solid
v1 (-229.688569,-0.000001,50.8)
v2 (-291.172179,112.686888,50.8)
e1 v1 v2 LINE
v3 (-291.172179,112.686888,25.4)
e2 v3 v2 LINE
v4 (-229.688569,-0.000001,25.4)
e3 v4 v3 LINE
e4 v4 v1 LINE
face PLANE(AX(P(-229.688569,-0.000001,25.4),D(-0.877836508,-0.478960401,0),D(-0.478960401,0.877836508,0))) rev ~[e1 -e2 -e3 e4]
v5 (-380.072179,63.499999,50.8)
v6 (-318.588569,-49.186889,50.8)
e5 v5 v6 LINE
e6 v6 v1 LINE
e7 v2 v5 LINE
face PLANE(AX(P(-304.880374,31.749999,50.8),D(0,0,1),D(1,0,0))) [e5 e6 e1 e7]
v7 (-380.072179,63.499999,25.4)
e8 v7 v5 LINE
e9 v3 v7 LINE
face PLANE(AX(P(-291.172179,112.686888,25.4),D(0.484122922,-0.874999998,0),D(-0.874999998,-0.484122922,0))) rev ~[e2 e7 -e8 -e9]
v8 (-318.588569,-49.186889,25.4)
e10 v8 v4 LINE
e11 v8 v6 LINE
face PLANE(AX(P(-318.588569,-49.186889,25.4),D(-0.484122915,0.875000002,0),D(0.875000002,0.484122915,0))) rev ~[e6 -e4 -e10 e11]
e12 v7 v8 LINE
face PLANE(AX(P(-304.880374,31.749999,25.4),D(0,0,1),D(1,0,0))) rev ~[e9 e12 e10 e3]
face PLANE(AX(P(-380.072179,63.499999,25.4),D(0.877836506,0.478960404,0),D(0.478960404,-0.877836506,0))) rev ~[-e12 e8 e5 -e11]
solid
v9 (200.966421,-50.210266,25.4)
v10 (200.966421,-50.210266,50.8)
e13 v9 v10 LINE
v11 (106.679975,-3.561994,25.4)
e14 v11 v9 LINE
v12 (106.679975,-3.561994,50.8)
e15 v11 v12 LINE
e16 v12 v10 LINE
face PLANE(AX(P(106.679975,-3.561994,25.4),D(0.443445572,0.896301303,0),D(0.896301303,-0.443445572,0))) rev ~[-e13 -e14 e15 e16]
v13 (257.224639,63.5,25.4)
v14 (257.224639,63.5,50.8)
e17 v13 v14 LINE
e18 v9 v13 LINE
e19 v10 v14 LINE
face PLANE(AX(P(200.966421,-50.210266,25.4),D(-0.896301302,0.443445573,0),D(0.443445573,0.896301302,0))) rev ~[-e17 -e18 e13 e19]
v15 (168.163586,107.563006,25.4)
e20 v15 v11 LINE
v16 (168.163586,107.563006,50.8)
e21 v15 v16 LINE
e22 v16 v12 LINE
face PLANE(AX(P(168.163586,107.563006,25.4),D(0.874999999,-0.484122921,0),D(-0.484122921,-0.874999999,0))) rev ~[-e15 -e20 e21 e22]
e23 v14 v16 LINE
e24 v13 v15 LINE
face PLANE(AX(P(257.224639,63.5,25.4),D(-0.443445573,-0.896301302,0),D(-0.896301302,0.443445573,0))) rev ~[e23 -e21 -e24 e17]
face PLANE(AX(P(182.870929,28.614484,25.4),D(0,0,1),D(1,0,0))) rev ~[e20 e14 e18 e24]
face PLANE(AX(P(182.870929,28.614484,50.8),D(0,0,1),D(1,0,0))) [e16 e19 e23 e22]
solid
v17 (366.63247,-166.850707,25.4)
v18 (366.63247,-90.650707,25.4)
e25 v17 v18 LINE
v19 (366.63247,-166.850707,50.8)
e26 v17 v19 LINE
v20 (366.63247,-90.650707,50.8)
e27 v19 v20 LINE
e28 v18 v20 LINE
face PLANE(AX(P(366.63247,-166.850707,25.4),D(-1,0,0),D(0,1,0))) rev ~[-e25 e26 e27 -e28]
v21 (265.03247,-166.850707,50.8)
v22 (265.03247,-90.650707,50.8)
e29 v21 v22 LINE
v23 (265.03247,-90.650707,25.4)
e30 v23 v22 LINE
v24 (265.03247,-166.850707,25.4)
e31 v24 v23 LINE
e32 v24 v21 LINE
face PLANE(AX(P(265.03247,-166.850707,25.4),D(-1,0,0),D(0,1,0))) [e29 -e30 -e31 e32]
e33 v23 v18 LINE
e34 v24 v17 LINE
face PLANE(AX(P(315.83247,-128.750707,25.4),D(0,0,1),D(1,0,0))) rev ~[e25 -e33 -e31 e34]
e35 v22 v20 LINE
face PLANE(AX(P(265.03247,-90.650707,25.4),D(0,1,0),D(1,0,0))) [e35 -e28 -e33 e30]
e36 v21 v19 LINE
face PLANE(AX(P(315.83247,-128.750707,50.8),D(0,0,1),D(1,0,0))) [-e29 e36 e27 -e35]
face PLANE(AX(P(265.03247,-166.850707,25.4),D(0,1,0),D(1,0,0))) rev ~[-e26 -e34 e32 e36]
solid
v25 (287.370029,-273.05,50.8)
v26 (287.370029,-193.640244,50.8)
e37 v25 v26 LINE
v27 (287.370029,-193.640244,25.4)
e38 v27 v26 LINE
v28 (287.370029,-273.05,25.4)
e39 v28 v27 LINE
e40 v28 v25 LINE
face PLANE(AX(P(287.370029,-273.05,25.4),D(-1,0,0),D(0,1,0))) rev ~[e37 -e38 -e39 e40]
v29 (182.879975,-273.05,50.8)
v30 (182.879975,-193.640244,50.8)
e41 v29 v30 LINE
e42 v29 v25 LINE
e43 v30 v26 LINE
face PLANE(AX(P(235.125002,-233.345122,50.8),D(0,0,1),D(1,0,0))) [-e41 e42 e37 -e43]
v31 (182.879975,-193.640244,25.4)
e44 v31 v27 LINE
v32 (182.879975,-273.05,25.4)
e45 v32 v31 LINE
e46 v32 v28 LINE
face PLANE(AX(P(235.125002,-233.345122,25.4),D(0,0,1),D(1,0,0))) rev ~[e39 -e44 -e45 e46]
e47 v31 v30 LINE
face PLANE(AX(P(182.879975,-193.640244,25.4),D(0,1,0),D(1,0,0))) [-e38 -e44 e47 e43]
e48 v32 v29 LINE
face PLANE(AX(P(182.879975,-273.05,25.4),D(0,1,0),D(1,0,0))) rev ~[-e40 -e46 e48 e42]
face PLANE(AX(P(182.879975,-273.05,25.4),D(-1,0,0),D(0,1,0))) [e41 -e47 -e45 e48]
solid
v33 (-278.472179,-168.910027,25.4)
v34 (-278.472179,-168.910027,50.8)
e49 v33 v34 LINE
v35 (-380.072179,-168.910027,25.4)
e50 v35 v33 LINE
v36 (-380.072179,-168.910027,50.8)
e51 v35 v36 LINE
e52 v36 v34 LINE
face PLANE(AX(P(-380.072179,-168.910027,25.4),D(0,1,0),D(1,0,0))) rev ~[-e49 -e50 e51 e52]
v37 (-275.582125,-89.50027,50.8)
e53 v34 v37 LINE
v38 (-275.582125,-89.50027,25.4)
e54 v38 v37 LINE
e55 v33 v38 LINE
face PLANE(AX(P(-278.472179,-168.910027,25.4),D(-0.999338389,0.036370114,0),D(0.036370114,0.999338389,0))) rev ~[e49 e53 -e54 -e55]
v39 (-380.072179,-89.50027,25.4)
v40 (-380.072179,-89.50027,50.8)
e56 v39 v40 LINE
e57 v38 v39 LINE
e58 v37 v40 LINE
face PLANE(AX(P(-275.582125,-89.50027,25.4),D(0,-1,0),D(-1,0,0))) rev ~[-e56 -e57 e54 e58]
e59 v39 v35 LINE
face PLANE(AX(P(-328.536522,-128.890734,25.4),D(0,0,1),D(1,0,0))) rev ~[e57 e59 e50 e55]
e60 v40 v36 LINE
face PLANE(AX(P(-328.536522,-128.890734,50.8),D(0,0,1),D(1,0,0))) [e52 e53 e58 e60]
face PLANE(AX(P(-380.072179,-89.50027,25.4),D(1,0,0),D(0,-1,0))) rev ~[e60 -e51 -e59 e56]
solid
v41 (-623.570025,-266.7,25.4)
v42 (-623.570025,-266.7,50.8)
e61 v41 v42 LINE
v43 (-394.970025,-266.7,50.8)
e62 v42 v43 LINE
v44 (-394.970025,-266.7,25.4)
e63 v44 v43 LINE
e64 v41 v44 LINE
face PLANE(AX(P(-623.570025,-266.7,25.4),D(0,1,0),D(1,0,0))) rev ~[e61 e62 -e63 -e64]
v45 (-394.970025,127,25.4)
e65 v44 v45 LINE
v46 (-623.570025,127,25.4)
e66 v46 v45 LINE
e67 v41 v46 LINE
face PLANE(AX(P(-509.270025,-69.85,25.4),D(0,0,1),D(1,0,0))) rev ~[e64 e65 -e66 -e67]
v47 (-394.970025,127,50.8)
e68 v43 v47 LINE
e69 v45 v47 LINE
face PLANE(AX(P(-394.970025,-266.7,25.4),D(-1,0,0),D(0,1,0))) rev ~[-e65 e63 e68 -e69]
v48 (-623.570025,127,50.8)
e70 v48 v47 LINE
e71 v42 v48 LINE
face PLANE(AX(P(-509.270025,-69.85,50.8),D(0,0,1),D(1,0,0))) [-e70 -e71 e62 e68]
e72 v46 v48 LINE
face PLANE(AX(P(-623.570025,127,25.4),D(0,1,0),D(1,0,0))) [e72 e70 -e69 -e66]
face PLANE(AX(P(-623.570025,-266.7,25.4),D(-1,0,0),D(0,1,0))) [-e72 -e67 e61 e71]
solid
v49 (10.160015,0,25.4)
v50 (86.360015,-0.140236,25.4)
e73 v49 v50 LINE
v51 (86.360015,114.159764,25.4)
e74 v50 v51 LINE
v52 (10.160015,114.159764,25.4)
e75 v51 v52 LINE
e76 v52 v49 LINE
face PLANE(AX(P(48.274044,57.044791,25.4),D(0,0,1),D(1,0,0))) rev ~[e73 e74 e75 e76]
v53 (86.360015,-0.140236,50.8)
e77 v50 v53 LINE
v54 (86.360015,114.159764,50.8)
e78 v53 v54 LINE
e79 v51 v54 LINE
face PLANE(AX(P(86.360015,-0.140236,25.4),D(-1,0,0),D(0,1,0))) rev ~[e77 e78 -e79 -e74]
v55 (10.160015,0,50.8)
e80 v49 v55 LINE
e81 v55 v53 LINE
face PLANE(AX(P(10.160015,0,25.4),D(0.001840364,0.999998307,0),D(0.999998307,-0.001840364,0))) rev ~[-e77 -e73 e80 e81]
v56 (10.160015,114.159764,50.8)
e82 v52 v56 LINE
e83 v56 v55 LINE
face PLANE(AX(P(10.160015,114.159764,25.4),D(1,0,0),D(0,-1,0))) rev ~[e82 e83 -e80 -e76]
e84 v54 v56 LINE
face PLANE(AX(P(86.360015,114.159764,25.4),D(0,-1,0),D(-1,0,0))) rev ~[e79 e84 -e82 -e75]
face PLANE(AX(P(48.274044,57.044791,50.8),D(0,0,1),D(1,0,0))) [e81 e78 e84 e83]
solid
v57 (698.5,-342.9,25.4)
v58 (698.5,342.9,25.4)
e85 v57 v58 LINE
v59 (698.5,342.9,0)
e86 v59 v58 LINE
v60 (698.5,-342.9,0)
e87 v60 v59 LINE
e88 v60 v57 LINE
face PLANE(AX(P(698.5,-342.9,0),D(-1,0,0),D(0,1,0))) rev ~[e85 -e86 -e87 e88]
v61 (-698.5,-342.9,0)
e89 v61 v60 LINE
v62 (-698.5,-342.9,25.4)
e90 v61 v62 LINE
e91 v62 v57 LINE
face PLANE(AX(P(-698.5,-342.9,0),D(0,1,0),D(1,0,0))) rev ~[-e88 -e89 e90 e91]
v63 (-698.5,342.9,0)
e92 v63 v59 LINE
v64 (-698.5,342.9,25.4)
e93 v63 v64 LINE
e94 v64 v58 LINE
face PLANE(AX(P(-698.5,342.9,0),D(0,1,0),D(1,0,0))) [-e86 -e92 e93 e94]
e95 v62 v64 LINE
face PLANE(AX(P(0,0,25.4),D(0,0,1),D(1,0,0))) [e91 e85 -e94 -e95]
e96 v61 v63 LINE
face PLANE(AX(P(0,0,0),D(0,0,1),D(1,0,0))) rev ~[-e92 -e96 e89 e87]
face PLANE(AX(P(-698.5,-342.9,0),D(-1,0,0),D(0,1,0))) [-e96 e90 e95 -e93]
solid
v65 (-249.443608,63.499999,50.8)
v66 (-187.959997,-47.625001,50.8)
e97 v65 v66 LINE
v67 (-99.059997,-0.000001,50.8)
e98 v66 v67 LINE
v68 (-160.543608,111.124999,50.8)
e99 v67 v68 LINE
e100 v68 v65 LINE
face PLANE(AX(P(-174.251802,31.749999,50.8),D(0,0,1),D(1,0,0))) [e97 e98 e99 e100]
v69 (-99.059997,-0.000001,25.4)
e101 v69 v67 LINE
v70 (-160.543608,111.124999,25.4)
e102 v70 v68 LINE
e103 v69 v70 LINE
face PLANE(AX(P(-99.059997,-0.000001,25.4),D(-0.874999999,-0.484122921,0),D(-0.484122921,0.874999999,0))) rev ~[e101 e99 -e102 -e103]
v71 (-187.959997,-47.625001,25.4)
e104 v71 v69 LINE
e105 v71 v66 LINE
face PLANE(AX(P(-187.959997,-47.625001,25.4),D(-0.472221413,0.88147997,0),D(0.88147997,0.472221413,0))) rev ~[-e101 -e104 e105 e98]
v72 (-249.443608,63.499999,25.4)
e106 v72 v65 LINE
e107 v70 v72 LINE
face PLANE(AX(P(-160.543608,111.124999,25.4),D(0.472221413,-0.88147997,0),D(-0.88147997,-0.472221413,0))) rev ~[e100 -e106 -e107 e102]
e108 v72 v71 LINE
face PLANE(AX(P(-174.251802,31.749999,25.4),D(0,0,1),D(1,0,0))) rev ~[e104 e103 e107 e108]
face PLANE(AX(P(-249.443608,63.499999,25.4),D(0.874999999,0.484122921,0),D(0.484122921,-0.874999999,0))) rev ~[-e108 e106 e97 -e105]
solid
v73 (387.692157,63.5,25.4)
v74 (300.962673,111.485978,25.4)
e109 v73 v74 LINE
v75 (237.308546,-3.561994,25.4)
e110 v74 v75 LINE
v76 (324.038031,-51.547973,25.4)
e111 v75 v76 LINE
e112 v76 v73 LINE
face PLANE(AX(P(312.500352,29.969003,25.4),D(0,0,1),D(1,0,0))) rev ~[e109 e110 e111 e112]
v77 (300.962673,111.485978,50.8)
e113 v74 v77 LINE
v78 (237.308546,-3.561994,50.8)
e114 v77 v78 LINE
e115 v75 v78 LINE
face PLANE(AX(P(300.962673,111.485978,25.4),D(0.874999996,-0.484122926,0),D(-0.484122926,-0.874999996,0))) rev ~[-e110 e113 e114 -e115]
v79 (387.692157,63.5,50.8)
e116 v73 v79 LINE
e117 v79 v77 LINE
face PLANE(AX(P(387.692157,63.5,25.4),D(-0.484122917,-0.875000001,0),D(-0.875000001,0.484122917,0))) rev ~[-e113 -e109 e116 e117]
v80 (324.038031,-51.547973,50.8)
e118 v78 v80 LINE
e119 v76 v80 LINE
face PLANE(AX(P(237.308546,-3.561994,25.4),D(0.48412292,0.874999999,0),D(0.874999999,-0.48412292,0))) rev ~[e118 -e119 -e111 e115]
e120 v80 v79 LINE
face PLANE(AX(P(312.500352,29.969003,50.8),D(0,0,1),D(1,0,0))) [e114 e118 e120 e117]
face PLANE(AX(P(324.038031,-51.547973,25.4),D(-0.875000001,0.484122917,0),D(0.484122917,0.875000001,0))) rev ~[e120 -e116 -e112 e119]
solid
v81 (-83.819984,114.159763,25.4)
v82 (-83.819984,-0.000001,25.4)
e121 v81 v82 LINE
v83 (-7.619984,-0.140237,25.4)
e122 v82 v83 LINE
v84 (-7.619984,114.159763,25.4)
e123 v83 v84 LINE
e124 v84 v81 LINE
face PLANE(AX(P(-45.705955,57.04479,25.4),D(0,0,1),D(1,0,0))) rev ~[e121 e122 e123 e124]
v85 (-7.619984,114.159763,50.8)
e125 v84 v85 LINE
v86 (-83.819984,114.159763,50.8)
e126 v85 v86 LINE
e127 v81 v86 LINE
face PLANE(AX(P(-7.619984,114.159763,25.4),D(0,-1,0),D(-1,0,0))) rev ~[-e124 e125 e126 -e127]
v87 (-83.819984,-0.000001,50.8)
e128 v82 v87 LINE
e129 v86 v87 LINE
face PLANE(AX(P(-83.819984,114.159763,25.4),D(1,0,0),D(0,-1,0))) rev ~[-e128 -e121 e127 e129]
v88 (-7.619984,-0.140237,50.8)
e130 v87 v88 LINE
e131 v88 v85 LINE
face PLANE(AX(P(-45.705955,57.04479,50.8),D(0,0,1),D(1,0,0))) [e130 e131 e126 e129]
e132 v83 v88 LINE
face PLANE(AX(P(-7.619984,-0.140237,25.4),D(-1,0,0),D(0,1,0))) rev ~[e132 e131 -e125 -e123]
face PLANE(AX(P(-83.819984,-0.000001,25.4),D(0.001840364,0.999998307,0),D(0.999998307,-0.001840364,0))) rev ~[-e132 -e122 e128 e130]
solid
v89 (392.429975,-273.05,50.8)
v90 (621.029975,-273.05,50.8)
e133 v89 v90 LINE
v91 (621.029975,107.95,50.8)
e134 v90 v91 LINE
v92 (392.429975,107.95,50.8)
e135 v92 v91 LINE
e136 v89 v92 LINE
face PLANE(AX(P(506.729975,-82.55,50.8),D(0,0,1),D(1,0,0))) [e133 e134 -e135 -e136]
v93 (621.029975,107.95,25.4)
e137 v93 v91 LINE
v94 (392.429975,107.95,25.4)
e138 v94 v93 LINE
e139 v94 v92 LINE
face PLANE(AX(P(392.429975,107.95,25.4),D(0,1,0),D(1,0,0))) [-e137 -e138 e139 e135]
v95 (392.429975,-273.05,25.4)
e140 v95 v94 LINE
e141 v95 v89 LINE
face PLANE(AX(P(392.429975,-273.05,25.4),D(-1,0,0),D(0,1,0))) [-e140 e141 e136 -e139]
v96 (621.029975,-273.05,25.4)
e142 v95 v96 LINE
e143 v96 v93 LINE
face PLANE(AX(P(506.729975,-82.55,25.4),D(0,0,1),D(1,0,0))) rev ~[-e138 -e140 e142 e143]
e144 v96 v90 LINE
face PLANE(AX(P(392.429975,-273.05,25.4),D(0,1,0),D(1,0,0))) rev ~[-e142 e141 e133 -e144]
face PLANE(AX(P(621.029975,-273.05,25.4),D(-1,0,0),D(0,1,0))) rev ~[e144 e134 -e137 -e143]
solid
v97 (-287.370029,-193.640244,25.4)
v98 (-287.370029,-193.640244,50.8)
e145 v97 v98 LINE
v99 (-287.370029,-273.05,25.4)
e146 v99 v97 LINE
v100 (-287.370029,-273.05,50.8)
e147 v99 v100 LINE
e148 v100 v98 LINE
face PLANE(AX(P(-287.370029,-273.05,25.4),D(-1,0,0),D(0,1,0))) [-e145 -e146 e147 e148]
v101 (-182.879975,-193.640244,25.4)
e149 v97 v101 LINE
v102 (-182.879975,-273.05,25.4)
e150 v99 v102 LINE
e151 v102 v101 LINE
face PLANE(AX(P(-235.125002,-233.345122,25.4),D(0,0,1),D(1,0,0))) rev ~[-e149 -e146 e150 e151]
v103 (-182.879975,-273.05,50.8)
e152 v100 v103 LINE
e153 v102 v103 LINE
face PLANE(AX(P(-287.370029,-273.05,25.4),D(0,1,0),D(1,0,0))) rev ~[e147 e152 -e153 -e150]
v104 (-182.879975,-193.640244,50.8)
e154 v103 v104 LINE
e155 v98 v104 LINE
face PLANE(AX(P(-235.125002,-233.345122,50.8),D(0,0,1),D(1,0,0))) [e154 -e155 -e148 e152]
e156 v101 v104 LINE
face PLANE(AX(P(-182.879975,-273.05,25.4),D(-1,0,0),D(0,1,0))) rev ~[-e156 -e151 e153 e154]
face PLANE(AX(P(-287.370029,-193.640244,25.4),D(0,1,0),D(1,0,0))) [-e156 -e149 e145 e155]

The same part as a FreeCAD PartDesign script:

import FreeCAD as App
import Part
import Sketcher
Q = App.Units.Quantity


def add_polygon(sketch, points):
    """Adds a closed chain of lines whose ends are joined by coincident constraints."""
    first, n = sketch.GeometryCount, len(points)
    for a, b in zip(points, points[1:] + points[:1]):
        sketch.addGeometry(Part.LineSegment(App.Vector(*a, 0), App.Vector(*b, 0)), False)
    for i in range(n):
        sketch.addConstraint(Sketcher.Constraint("Coincident", first + i, 2, first + (i + 1) % n, 1))

doc = App.newDocument("Part")
body = doc.addObject("PartDesign::Body", "Body")

# Sketch on XY plane
sketch1 = doc.addObject("Sketcher::SketchObject", "Sketch")
body.addObject(sketch1)
sketch1.AttachmentSupport = (doc.XY_Plane, [""])
sketch1.MapMode = "FlatFace"
add_polygon(sketch1, [(-698, 343), (-698, -343), (698, -343), (698, 343)])  # lines 0-3
sketch1.addConstraint([
    Sketcher.Constraint("Vertical", 0),
    Sketcher.Constraint("Horizontal", 1),
    Sketcher.Constraint("Vertical", 2),
    Sketcher.Constraint("Horizontal", 3),
    Sketcher.Constraint("Symmetric", 0, 2, 2, 2, -1, 1),
    Sketcher.Constraint("DistanceX", 1, 1, 1, 2, Q("55 in")),
    Sketcher.Constraint("DistanceY", 0, 2, 0, 1, Q("27 in")),
])
pad1 = doc.addObject("PartDesign::Pad", "Pad")
body.addObject(pad1)
pad1.Profile = sketch1
pad1.Length = Q("1 in")
body2 = doc.addObject("PartDesign::Body", "Body001")
body2.AllowCompound = True

# Sketch on XY plane
sketch2 = doc.addObject("Sketcher::SketchObject", "Sketch001")
body2.addObject(sketch2)
sketch2.AttachmentSupport = (doc.getObject("XY_Plane001"), [""])
sketch2.MapMode = "FlatFace"
sketch2.AttachmentOffset = App.Placement(App.Vector(0, 0, 1 * 25.4), App.Rotation())
add_polygon(sketch2, [(-624, 127), (-624, -267), (-395, -267), (-395, 127)])  # lines 0-3
add_polygon(sketch2, [(392, 108), (392, -273), (621, -273), (621, 108)])  # lines 4-7
add_polygon(sketch2, [(183, -194), (183, -273), (287, -273), (287, -194)])  # lines 8-11
add_polygon(sketch2, [(168, 108), (107, -4), (201, -50), (257, 64)])  # lines 12-15
add_polygon(sketch2, [(301, 111), (237, -4), (324, -52), (388, 64)])  # lines 16-19
add_polygon(sketch2, [(-99, 0), (-161, 111), (-249, 63), (-188, -48)])  # lines 20-23
add_polygon(sketch2, [(-230, 0), (-291, 113), (-380, 63), (-319, -49)])  # lines 24-27
add_polygon(sketch2, [(-84, 114), (-84, 0), (-8, 0), (-8, 114)])  # lines 28-31
add_polygon(sketch2, [(10, 114), (10, 0), (86, 0), (86, 114)])  # lines 32-35
add_polygon(sketch2, [(-287, -194), (-287, -273), (-183, -273), (-183, -194)])  # lines 36-39
add_polygon(sketch2, [(-278, -169), (-276, -90), (-380, -90), (-380, -169)])  # lines 40-43
add_polygon(sketch2, [(265, -91), (265, -167), (367, -167), (367, -91)])  # lines 44-47
sketch2.addConstraint([
    Sketcher.Constraint("Vertical", 0),
    Sketcher.Constraint("Horizontal", 1),
    Sketcher.Constraint("Vertical", 2),
    Sketcher.Constraint("Horizontal", 3),
    Sketcher.Constraint("Vertical", 4),
    Sketcher.Constraint("Horizontal", 5),
    Sketcher.Constraint("Vertical", 6),
    Sketcher.Constraint("Horizontal", 7),
    Sketcher.Constraint("Vertical", 8),
    Sketcher.Constraint("Horizontal", 9),
    Sketcher.Constraint("Vertical", 10),
    Sketcher.Constraint("Horizontal", 11),
    Sketcher.Constraint("Vertical", 28),
    Sketcher.Constraint("Vertical", 30),
    Sketcher.Constraint("Horizontal", 31),
    Sketcher.Constraint("Vertical", 32),
    Sketcher.Constraint("Vertical", 34),
    Sketcher.Constraint("Horizontal", 35),
    Sketcher.Constraint("Vertical", 36),
    Sketcher.Constraint("Horizontal", 37),
    Sketcher.Constraint("Vertical", 38),
    Sketcher.Constraint("Horizontal", 39),
    Sketcher.Constraint("Horizontal", 41),
    Sketcher.Constraint("Vertical", 42),
    Sketcher.Constraint("Horizontal", 43),
    Sketcher.Constraint("Vertical", 44),
    Sketcher.Constraint("Horizontal", 45),
    Sketcher.Constraint("Vertical", 46),
    Sketcher.Constraint("Horizontal", 47),
    Sketcher.Constraint("Symmetric", 9, 2, 36, 2, -2),
    Sketcher.Constraint("Symmetric", 11, 2, 38, 2, -2),
    Sketcher.Constraint("PointOnObject", 23, 2, -1),
    Sketcher.Constraint("PointOnObject", 27, 2, -1),
    Sketcher.Constraint("PointOnObject", 28, 2, -1),
    Sketcher.Constraint("PointOnObject", 32, 2, -1),
    Sketcher.Constraint("Perpendicular", 13, 14),
    Sketcher.Constraint("Perpendicular", 14, 15),
    Sketcher.Constraint("Parallel", 12, 16),
    Sketcher.Constraint("Perpendicular", 16, 17),
    Sketcher.Constraint("Perpendicular", 17, 18),
    Sketcher.Constraint("Perpendicular", 18, 19),
    Sketcher.Constraint("Parallel", 20, 22),
    Sketcher.Constraint("Parallel", 21, 23),
    Sketcher.Constraint("Perpendicular", 22, 25),
    Sketcher.Constraint("Parallel", 24, 26),
    Sketcher.Constraint("Parallel", 25, 27),
    Sketcher.Constraint("Parallel", 29, 33),
    Sketcher.Constraint("Horizontal", 5, 2, 8, 2),
    Sketcher.Constraint("Horizontal", 12, 2, 16, 2),
    Sketcher.Constraint("Horizontal", 14, 2, 18, 2),
    Sketcher.Constraint("Horizontal", 18, 2, 21, 2),
    Sketcher.Constraint("Horizontal", 21, 2, 25, 2),
    Sketcher.Constraint("Horizontal", 31, 2, 34, 2),
    Sketcher.Constraint("Vertical", 25, 2, 41, 2),
    Sketcher.Constraint("Equal", 3, 5),
    Sketcher.Constraint("Equal", 31, 35),
    Sketcher.Constraint("Equal", 39, 41),
    Sketcher.Constraint("Equal", 43, 45),
    Sketcher.Constraint("Equal", 38, 42),
    Sketcher.Constraint("Equal", 35, 44),
    Sketcher.Constraint("Equal", 12, 20),
    Sketcher.Constraint("DistanceX", 1, 1, 1, 2, Q("9 in")),
    Sketcher.Constraint("DistanceX", 31, 2, 31, 1, Q("3 in")),
    Sketcher.Constraint("DistanceX", 43, 1, 43, 2, Q("4 in")),
    Sketcher.Constraint("DistanceY", 4, 2, 4, 1, Q("15 in")),
    Sketcher.Constraint("Distance", 12, Q("5 in")),
    Sketcher.Constraint("Distance", 25, Q("4 in")),
    Sketcher.Constraint("DistanceY", 0, 2, 0, 1, Q("15.5 in")),
    Sketcher.Constraint("DistanceY", 30, 1, 30, 2, Q("4.5 in")),
    Sketcher.Constraint("DistanceY", -1, 1, 2, 2, Q("5 in")),
    Sketcher.Constraint("DistanceX", 1, 2, 4, 2, Q("31 in")),
    Sketcher.Constraint("DistanceX", 12, 2, 11, 2, Q("3 in")),
    Sketcher.Constraint("DistanceY", 1, 2, 21, 2, Q("13 in")),
    Sketcher.Constraint("DistanceX", 22, 2, -1, 1, Q("7.3999999 in")),
    Sketcher.Constraint("DistanceX", 23, 2, -1, 1, Q("3.8999999 in")),
    Sketcher.Constraint("DistanceX", 25, 2, 24, 2, Q("3.5 in")),
    Sketcher.Constraint("DistanceX", 29, 2, 32, 2, Q("0.7 in")),
    Sketcher.Constraint("DistanceY", 4, 2, -1, 1, Q("10.75 in")),
    Sketcher.Constraint("DistanceX", 8, 2, 4, 2, Q("8.25 in")),
    Sketcher.Constraint("DistanceY", 12, 2, 15, 2, Q("4.375 in")),
    Sketcher.Constraint("Distance", 17, 99.119412),
    Sketcher.Constraint("Distance", 24, 128.36888),
    Sketcher.Constraint("Distance", 40, 79.46233),
    Sketcher.Constraint("DistanceX", 9, 1, 9, 2, 104.490054),
    Sketcher.Constraint("DistanceY", 28, 2, 28, 1, 114.159764),
    Sketcher.Constraint("DistanceX", -1, 1, 9, 2, 287.370029),
    Sketcher.Constraint("DistanceX", -1, 1, 13, 2, 200.966421),
    Sketcher.Constraint("DistanceX", -1, 1, 14, 2, 257.224639),
    Sketcher.Constraint("DistanceX", -1, 1, 17, 2, 324.038031),
    Sketcher.Constraint("DistanceX", 24, 2, -1, 1, 291.172179),
    Sketcher.Constraint("DistanceY", 40, 2, -1, 1, 89.50027),
    Sketcher.Constraint("DistanceX", -1, 1, 44, 2, 265.03247),
    Sketcher.Constraint("DistanceX", 29, 2, 12, 2, 114.299959),
    Sketcher.Constraint("DistanceY", 44, 2, 13, 2, 116.640441),
])
pad2 = doc.addObject("PartDesign::Pad", "Pad001")
body2.addObject(pad2)
pad2.Profile = sketch2
pad2.Length = Q("1 in")

doc.recompute()
